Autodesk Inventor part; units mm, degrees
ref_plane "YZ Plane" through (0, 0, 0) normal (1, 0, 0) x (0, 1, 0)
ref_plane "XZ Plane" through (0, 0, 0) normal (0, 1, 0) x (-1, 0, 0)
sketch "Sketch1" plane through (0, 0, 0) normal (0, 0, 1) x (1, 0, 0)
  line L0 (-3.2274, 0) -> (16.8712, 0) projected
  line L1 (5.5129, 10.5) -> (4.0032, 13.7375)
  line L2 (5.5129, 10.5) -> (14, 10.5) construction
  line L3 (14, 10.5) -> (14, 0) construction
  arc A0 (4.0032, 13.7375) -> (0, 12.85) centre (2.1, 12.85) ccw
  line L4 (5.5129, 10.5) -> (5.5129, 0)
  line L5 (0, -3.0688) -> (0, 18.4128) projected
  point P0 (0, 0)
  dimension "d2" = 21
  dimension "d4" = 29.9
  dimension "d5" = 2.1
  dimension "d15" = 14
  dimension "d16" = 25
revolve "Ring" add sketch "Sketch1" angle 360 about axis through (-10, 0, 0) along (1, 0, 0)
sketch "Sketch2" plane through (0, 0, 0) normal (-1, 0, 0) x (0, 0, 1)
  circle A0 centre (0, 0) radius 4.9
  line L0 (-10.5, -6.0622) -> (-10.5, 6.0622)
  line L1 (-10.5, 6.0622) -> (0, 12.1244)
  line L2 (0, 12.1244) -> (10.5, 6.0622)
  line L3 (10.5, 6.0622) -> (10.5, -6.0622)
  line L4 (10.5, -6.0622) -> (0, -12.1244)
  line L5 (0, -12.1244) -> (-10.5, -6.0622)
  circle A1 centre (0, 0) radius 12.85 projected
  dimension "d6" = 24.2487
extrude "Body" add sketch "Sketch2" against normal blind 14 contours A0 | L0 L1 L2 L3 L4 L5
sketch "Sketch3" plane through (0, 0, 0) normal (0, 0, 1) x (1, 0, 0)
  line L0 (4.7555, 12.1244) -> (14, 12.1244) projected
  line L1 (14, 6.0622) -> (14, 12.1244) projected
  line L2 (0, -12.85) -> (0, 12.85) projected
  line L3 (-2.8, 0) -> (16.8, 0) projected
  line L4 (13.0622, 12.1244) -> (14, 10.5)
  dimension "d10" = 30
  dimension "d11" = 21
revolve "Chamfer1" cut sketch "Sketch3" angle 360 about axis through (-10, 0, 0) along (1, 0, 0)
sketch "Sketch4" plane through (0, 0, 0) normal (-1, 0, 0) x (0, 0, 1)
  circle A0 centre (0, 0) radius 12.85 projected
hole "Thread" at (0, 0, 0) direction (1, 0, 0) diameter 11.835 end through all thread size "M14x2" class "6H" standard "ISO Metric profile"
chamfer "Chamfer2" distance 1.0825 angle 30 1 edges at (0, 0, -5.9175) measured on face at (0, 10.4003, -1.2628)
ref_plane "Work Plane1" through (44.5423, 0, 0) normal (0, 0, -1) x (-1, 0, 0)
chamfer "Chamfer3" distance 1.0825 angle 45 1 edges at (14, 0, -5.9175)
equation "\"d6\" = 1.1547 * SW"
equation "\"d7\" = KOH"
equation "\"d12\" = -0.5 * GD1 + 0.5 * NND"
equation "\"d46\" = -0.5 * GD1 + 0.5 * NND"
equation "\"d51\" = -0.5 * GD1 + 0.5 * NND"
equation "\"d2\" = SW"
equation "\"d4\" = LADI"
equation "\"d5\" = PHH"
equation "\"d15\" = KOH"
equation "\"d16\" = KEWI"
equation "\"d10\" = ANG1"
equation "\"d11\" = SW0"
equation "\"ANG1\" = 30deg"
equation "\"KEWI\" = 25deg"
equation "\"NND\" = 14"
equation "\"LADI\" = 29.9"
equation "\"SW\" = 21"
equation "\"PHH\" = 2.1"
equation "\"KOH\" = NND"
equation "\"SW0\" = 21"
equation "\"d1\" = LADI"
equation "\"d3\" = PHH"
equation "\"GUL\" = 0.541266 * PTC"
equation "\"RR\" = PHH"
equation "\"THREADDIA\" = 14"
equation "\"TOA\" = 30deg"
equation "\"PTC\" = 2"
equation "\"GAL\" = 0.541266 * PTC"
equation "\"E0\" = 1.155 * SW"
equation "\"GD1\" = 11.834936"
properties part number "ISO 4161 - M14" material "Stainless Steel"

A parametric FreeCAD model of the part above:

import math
import FreeCAD as App
import Part
import Sketcher
from FreeCAD import Vector
Q = App.Units.Quantity


def edges_at(feature, points):
    """Names of the edges that pass closest to the given points."""
    edges = feature.Shape.Edges
    near = lambda p: min(range(len(edges)), key=lambda i: edges[i].distToShape(Part.Vertex(*p))[0])
    return sorted({f"Edge{near(p) + 1}" for p in points})


def add_polygon(sketch, points):
    """Adds a closed chain of lines whose ends are joined by coincident constraints."""
    first, n = sketch.GeometryCount, len(points)
    for a, b in zip(points, points[1:] + points[:1]):
        sketch.addGeometry(Part.LineSegment(App.Vector(*a, 0), App.Vector(*b, 0)), False)
    for i in range(n):
        sketch.addConstraint(Sketcher.Constraint("Coincident", first + i, 2, first + (i + 1) % n, 1))

doc = App.newDocument("Part")
body = doc.addObject("PartDesign::Body", "Body")

# Sketch on XY plane
sketch1 = body.newObject("Sketcher::SketchObject", "Sketch")
sketch1.AttachmentSupport = (doc.getObject("XY_Plane"), [""])
sketch1.MapMode = "FlatFace"
sketch1.addGeometry(Part.LineSegment(Vector(0, 12.8, 0), Vector(0, 0, 0)), False)
sketch1.addGeometry(Part.LineSegment(Vector(0, 0, 0), Vector(5.5, 0, 0)), False)
sketch1.addGeometry(Part.LineSegment(Vector(5.5, 0, 0), Vector(5.5, 10.5, 0)), False)
sketch1.addGeometry(Part.LineSegment(Vector(5.5, 10.5, 0), Vector(4, 13.7, 0)), False)
sketch1.addGeometry(Part.ArcOfCircle(Part.Circle(Vector(2.1, 12.8, 0), Vector(0, 0, 1), 2.1), math.radians(25), math.radians(180)), False)
sketch1.addConstraint(Sketcher.Constraint("Coincident", 0, 2, 1, 1))
sketch1.addConstraint(Sketcher.Constraint("Coincident", 1, 2, 2, 1))
sketch1.addConstraint(Sketcher.Constraint("Coincident", 2, 2, 3, 1))
sketch1.addConstraint(Sketcher.Constraint("Tangent", 3, 2, 4, 1))
sketch1.addConstraint(Sketcher.Constraint("Tangent", 4, 2, 0, 1))
sketch1.addConstraint(Sketcher.Constraint("Vertical", 0))
sketch1.addConstraint(Sketcher.Constraint("Horizontal", 1))
sketch1.addConstraint(Sketcher.Constraint("Vertical", 2))
sketch1.addConstraint(Sketcher.Constraint("Coincident", 0, 2, -1, 1))
sketch1.addConstraint(Sketcher.Constraint("Radius", 4, 2.1))
sketch1.addConstraint(Sketcher.Constraint("Angle", 3, Q("115.0004 deg")))
sketch1.addConstraint(Sketcher.Constraint("DistanceY", 2, 1, 2, 2, 10.5))
sketch1.addConstraint(Sketcher.Constraint("DistanceY", 0, 2, 0, 1, 12.85))
revolution = body.newObject("PartDesign::Revolution", "Revolution")
revolution.Profile = sketch1
revolution.ReferenceAxis = (sketch1, ["H_Axis"])
revolution.Angle = 360

# Sketch on YZ plane
sketch2 = body.newObject("Sketcher::SketchObject", "Sketch001")
sketch2.AttachmentSupport = (doc.getObject("YZ_Plane"), [""])
sketch2.MapMode = "FlatFace"
add_polygon(sketch2, [(6, -10), (-6, -10), (-12, 0), (-6, 10), (6, 10), (12, 0)])  # lines 0-5
sketch2.addConstraint(Sketcher.Constraint("Horizontal", 0))
sketch2.addConstraint(Sketcher.Constraint("Horizontal", 3))
sketch2.addConstraint(Sketcher.Constraint("Symmetric", 0, 2, 3, 2, -1, 1))
sketch2.addConstraint(Sketcher.Constraint("Symmetric", 1, 2, 4, 2, -1, 1))
sketch2.addConstraint(Sketcher.Constraint("PointOnObject", 1, 2, -1))
sketch2.addConstraint(Sketcher.Constraint("Parallel", 2, 5))
sketch2.addConstraint(Sketcher.Constraint("Vertical", 0, 2, 2, 2))
sketch2.addConstraint(Sketcher.Constraint("Angle", 1, Q("120 deg")))
sketch2.addConstraint(Sketcher.Constraint("DistanceY", 0, 2, 2, 2, 21.0))
sketch2.addConstraint(Sketcher.Constraint("DistanceX", 1, 2, 4, 2, 24.2488))
pad1 = body.newObject("PartDesign::Pad", "Pad")
pad1.Profile = sketch2
pad1.Length = 14

# Sketch on XY plane
sketch3 = body.newObject("Sketcher::SketchObject", "Sketch002")
sketch3.AttachmentSupport = (doc.getObject("XY_Plane"), [""])
sketch3.MapMode = "FlatFace"
add_polygon(sketch3, [(14, 12.1), (13.1, 12.1), (14, 10.5)])  # lines 0-2
sketch3.addConstraint(Sketcher.Constraint("Horizontal", 0))
sketch3.addConstraint(Sketcher.Constraint("Vertical", 2))
sketch3.addConstraint(Sketcher.Constraint("DistanceX", -1, 1, 1, 2, 14.0))
sketch3.addConstraint(Sketcher.Constraint("DistanceY", -1, 1, 1, 2, 10.5))
sketch3.addConstraint(Sketcher.Constraint("DistanceX", 0, 2, 0, 1, 0.9378))
sketch3.addConstraint(Sketcher.Constraint("DistanceY", 2, 1, 2, 2, 1.6244))
groove = body.newObject("PartDesign::Groove", "Groove")
groove.Profile = sketch3
groove.ReferenceAxis = (sketch3, ["H_Axis"])
groove.Angle = 360

# Sketch on YZ plane
sketch4 = body.newObject("Sketcher::SketchObject", "Sketch003")
sketch4.AttachmentSupport = (doc.getObject("YZ_Plane"), [""])
sketch4.MapMode = "FlatFace"
sketch4.addGeometry(Part.Circle(Vector(0, 0, 0), Vector(0, 0, 1), 6), False)
sketch4.addConstraint(Sketcher.Constraint("Coincident", 0, 3, -1, 1))
sketch4.addConstraint(Sketcher.Constraint("Diameter", 0, 11.835))
doc.recompute()
hole = body.newObject("PartDesign::Hole", "Hole")
hole.Profile = sketch4
hole.ThreadType = "None"
hole.Diameter = 11.835
hole.DepthType = "ThroughAll"
hole.Reversed = True
doc.recompute()

chamfer = body.newObject("PartDesign::Chamfer", "Chamfer")
chamfer.Base = (hole, edges_at(hole, [(0, 0, -5.918)]))
chamfer.ChamferType = "Distance and Angle"
chamfer.Size = 1.0825
chamfer.Angle = 30
doc.recompute()

chamfer2 = body.newObject("PartDesign::Chamfer", "Chamfer001")
chamfer2.Base = (chamfer, edges_at(chamfer, [(14, 0, -5.918)]))
chamfer2.Size = 1.0825

doc.recompute()
